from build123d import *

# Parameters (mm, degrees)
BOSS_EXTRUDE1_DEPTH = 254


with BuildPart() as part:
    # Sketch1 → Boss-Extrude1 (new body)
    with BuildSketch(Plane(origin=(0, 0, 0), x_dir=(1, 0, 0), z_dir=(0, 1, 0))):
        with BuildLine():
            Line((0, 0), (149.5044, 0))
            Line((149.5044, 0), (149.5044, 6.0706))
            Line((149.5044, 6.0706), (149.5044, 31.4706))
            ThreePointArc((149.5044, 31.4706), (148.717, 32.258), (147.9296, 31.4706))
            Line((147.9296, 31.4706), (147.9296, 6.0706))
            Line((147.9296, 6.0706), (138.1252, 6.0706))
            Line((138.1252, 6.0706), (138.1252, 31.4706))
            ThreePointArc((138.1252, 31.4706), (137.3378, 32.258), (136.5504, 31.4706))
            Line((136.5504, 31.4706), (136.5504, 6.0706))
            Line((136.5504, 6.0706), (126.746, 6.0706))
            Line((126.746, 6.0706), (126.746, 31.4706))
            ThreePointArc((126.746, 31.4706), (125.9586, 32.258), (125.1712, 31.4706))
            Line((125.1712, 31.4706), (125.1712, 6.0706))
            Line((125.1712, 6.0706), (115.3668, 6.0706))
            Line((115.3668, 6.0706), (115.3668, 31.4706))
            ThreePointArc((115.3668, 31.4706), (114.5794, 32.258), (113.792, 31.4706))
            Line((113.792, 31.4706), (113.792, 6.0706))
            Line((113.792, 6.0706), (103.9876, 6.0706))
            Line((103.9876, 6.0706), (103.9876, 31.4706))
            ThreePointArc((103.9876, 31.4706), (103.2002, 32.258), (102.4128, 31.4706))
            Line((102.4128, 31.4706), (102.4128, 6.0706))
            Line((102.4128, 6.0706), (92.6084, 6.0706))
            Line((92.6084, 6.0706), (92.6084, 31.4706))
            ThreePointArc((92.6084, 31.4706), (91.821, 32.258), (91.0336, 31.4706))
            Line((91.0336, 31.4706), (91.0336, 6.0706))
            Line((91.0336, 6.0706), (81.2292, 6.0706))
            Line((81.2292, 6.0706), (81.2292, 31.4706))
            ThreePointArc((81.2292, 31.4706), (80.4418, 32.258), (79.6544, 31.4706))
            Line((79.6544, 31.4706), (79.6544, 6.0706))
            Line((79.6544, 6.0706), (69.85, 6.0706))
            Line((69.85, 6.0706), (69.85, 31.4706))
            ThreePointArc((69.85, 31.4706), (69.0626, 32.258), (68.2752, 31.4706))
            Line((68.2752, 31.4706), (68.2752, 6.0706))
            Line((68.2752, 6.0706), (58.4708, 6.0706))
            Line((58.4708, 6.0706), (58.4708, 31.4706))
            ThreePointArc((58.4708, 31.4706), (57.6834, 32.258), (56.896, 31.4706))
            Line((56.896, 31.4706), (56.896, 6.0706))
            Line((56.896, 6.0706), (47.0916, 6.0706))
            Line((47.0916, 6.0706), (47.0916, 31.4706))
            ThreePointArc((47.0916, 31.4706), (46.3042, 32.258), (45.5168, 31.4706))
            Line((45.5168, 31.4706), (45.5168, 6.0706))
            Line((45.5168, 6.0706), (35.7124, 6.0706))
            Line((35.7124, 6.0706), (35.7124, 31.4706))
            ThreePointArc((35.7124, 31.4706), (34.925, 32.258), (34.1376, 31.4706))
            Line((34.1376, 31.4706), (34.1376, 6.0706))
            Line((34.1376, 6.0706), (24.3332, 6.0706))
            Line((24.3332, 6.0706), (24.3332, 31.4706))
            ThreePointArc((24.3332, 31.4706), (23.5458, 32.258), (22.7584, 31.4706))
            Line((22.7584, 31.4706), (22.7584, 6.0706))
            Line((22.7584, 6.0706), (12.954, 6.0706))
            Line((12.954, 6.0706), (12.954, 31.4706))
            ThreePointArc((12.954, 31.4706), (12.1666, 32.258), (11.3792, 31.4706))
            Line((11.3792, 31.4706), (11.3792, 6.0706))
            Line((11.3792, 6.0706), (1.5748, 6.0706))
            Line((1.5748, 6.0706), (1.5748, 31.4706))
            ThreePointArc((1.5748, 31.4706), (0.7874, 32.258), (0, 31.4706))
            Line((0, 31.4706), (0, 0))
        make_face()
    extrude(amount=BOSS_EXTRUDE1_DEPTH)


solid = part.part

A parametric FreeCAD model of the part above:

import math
import FreeCAD as App
import Part
import Sketcher
from FreeCAD import Vector
Q = App.Units.Quantity

doc = App.newDocument("Part")
body = doc.addObject("PartDesign::Body", "Body")

sketch1 = body.newObject("Sketcher::SketchObject", "Sketch")
sketch1.AttachmentSupport = (doc.getObject("XZ_Plane"), [""])
sketch1.MapMode = "FlatFace"
sketch1.addGeometry([
    Part.LineSegment(Vector(0, 0, 0), Vector(149.5044, 0, 0)),
    Part.LineSegment(Vector(149.5044, 0, 0), Vector(149.5044, -31.4706, 0)),
    Part.ArcOfCircle(Part.Circle(Vector(148.717, -31.4706, 0), Vector(0, 0, 1), 0.7874), math.radians(180), math.radians(360)),
    Part.LineSegment(Vector(147.9296, -31.4706, 0), Vector(147.9296, -6.0706, 0)),
    Part.LineSegment(Vector(147.9296, -6.0706, 0), Vector(138.1252, -6.0706, 0)),
    Part.LineSegment(Vector(138.1252, -6.0706, 0), Vector(138.1252, -31.4706, 0)),
    Part.ArcOfCircle(Part.Circle(Vector(137.3378, -31.4706, 0), Vector(0, 0, 1), 0.7874), math.radians(180), math.radians(360)),
    Part.LineSegment(Vector(136.5504, -31.4706, 0), Vector(136.5504, -6.0706, 0)),
    Part.LineSegment(Vector(136.5504, -6.0706, 0), Vector(126.746, -6.0706, 0)),
    Part.LineSegment(Vector(126.746, -6.0706, 0), Vector(126.746, -31.4706, 0)),
    Part.ArcOfCircle(Part.Circle(Vector(125.9586, -31.4706, 0), Vector(0, 0, 1), 0.7874), math.radians(180), math.radians(360)),
    Part.LineSegment(Vector(125.1712, -31.4706, 0), Vector(125.1712, -6.0706, 0)),
    Part.LineSegment(Vector(125.1712, -6.0706, 0), Vector(115.3668, -6.0706, 0)),
    Part.LineSegment(Vector(115.3668, -6.0706, 0), Vector(115.3668, -31.4706, 0)),
    Part.ArcOfCircle(Part.Circle(Vector(114.5794, -31.4706, 0), Vector(0, 0, 1), 0.7874), math.radians(180), math.radians(360)),
    Part.LineSegment(Vector(113.792, -31.4706, 0), Vector(113.792, -6.0706, 0)),
    Part.LineSegment(Vector(113.792, -6.0706, 0), Vector(103.9876, -6.0706, 0)),
    Part.LineSegment(Vector(103.9876, -6.0706, 0), Vector(103.9876, -31.4706, 0)),
    Part.ArcOfCircle(Part.Circle(Vector(103.2002, -31.4706, 0), Vector(0, 0, 1), 0.7874), math.radians(180), math.radians(360)),
    Part.LineSegment(Vector(102.4128, -31.4706, 0), Vector(102.4128, -6.0706, 0)),
    Part.LineSegment(Vector(102.4128, -6.0706, 0), Vector(92.6084, -6.0706, 0)),
    Part.LineSegment(Vector(92.6084, -6.0706, 0), Vector(92.6084, -31.4706, 0)),
    Part.ArcOfCircle(Part.Circle(Vector(91.821, -31.4706, 0), Vector(0, 0, 1), 0.7874), math.radians(180), math.radians(360)),
    Part.LineSegment(Vector(91.0336, -31.4706, 0), Vector(91.0336, -6.0706, 0)),
    Part.LineSegment(Vector(91.0336, -6.0706, 0), Vector(81.2292, -6.0706, 0)),
    Part.LineSegment(Vector(81.2292, -6.0706, 0), Vector(81.2292, -31.4706, 0)),
    Part.ArcOfCircle(Part.Circle(Vector(80.4418, -31.4706, 0), Vector(0, 0, 1), 0.7874), math.radians(180), math.radians(360)),
    Part.LineSegment(Vector(79.6544, -31.4706, 0), Vector(79.6544, -6.0706, 0)),
    Part.LineSegment(Vector(79.6544, -6.0706, 0), Vector(69.85, -6.0706, 0)),
    Part.LineSegment(Vector(69.85, -6.0706, 0), Vector(69.85, -31.4706, 0)),
    Part.ArcOfCircle(Part.Circle(Vector(69.0626, -31.4706, 0), Vector(0, 0, 1), 0.7874), math.radians(180), math.radians(360)),
    Part.LineSegment(Vector(68.2752, -31.4706, 0), Vector(68.2752, -6.0706, 0)),
    Part.LineSegment(Vector(68.2752, -6.0706, 0), Vector(58.4708, -6.0706, 0)),
    Part.LineSegment(Vector(58.4708, -6.0706, 0), Vector(58.4708, -31.4706, 0)),
    Part.ArcOfCircle(Part.Circle(Vector(57.6834, -31.4706, 0), Vector(0, 0, 1), 0.7874), math.radians(180), math.radians(360)),
    Part.LineSegment(Vector(56.896, -31.4706, 0), Vector(56.896, -6.0706, 0)),
    Part.LineSegment(Vector(56.896, -6.0706, 0), Vector(47.0916, -6.0706, 0)),
    Part.LineSegment(Vector(47.0916, -6.0706, 0), Vector(47.0916, -31.4706, 0)),
    Part.ArcOfCircle(Part.Circle(Vector(46.3042, -31.4706, 0), Vector(0, 0, 1), 0.7874), math.radians(180), math.radians(360)),
    Part.LineSegment(Vector(45.5168, -31.4706, 0), Vector(45.5168, -6.0706, 0)),
    Part.LineSegment(Vector(45.5168, -6.0706, 0), Vector(35.7124, -6.0706, 0)),
    Part.LineSegment(Vector(35.7124, -6.0706, 0), Vector(35.7124, -31.4706, 0)),
    Part.ArcOfCircle(Part.Circle(Vector(34.925, -31.4706, 0), Vector(0, 0, 1), 0.7874), math.radians(180), math.radians(360)),
    Part.LineSegment(Vector(34.1376, -31.4706, 0), Vector(34.1376, -6.0706, 0)),
    Part.LineSegment(Vector(34.1376, -6.0706, 0), Vector(24.3332, -6.0706, 0)),
    Part.LineSegment(Vector(24.3332, -6.0706, 0), Vector(24.3332, -31.4706, 0)),
    Part.ArcOfCircle(Part.Circle(Vector(23.5458, -31.4706, 0), Vector(0, 0, 1), 0.7874), math.radians(180), math.radians(360)),
    Part.LineSegment(Vector(22.7584, -31.4706, 0), Vector(22.7584, -6.0706, 0)),
    Part.LineSegment(Vector(22.7584, -6.0706, 0), Vector(12.954, -6.0706, 0)),
    Part.LineSegment(Vector(12.954, -6.0706, 0), Vector(12.954, -31.4706, 0)),
    Part.ArcOfCircle(Part.Circle(Vector(12.1666, -31.4706, 0), Vector(0, 0, 1), 0.7874), math.radians(180), math.radians(360)),
    Part.LineSegment(Vector(11.3792, -31.4706, 0), Vector(11.3792, -6.0706, 0)),
    Part.LineSegment(Vector(11.3792, -6.0706, 0), Vector(1.5748, -6.0706, 0)),
    Part.LineSegment(Vector(1.5748, -6.0706, 0), Vector(1.5748, -31.4706, 0)),
    Part.ArcOfCircle(Part.Circle(Vector(0.7874, -31.4706, 0), Vector(0, 0, 1), 0.7874), math.radians(180), math.radians(360)),
    Part.LineSegment(Vector(0, -31.4706, 0), Vector(0, 0, 0)),
], False)
sketch1.addConstraint([
    Sketcher.Constraint("Coincident", 0, 2, 1, 1),
    Sketcher.Constraint("Tangent", 1, 2, 2, 2),
    Sketcher.Constraint("Tangent", 2, 1, 3, 1),
    Sketcher.Constraint("Coincident", 3, 2, 4, 1),
    Sketcher.Constraint("Coincident", 4, 2, 5, 1),
    Sketcher.Constraint("Tangent", 5, 2, 6, 2),
    Sketcher.Constraint("Tangent", 6, 1, 7, 1),
    Sketcher.Constraint("Coincident", 7, 2, 8, 1),
    Sketcher.Constraint("Coincident", 8, 2, 9, 1),
    Sketcher.Constraint("Tangent", 9, 2, 10, 2),
    Sketcher.Constraint("Tangent", 10, 1, 11, 1),
    Sketcher.Constraint("Coincident", 11, 2, 12, 1),
    Sketcher.Constraint("Coincident", 12, 2, 13, 1),
    Sketcher.Constraint("Tangent", 13, 2, 14, 2),
    Sketcher.Constraint("Tangent", 14, 1, 15, 1),
    Sketcher.Constraint("Coincident", 15, 2, 16, 1),
    Sketcher.Constraint("Coincident", 16, 2, 17, 1),
    Sketcher.Constraint("Tangent", 17, 2, 18, 2),
    Sketcher.Constraint("Tangent", 18, 1, 19, 1),
    Sketcher.Constraint("Coincident", 19, 2, 20, 1),
    Sketcher.Constraint("Coincident", 20, 2, 21, 1),
    Sketcher.Constraint("Tangent", 21, 2, 22, 2),
    Sketcher.Constraint("Tangent", 22, 1, 23, 1),
    Sketcher.Constraint("Coincident", 23, 2, 24, 1),
    Sketcher.Constraint("Coincident", 24, 2, 25, 1),
    Sketcher.Constraint("Tangent", 25, 2, 26, 2),
    Sketcher.Constraint("Tangent", 26, 1, 27, 1),
    Sketcher.Constraint("Coincident", 27, 2, 28, 1),
    Sketcher.Constraint("Coincident", 28, 2, 29, 1),
    Sketcher.Constraint("Tangent", 29, 2, 30, 2),
    Sketcher.Constraint("Tangent", 30, 1, 31, 1),
    Sketcher.Constraint("Coincident", 31, 2, 32, 1),
    Sketcher.Constraint("Coincident", 32, 2, 33, 1),
    Sketcher.Constraint("Tangent", 33, 2, 34, 2),
    Sketcher.Constraint("Tangent", 34, 1, 35, 1),
    Sketcher.Constraint("Coincident", 35, 2, 36, 1),
    Sketcher.Constraint("Coincident", 36, 2, 37, 1),
    Sketcher.Constraint("Tangent", 37, 2, 38, 2),
    Sketcher.Constraint("Tangent", 38, 1, 39, 1),
    Sketcher.Constraint("Coincident", 39, 2, 40, 1),
    Sketcher.Constraint("Coincident", 40, 2, 41, 1),
    Sketcher.Constraint("Tangent", 41, 2, 42, 2),
    Sketcher.Constraint("Tangent", 42, 1, 43, 1),
    Sketcher.Constraint("Coincident", 43, 2, 44, 1),
    Sketcher.Constraint("Coincident", 44, 2, 45, 1),
    Sketcher.Constraint("Tangent", 45, 2, 46, 2),
    Sketcher.Constraint("Tangent", 46, 1, 47, 1),
    Sketcher.Constraint("Coincident", 47, 2, 48, 1),
    Sketcher.Constraint("Coincident", 48, 2, 49, 1),
    Sketcher.Constraint("Tangent", 49, 2, 50, 2),
    Sketcher.Constraint("Tangent", 50, 1, 51, 1),
    Sketcher.Constraint("Coincident", 51, 2, 52, 1),
    Sketcher.Constraint("Coincident", 52, 2, 53, 1),
    Sketcher.Constraint("Tangent", 53, 2, 54, 2),
    Sketcher.Constraint("Tangent", 54, 1, 55, 1),
    Sketcher.Constraint("Coincident", 55, 2, 0, 1),
    Sketcher.Constraint("Horizontal", 0),
    Sketcher.Constraint("Vertical", 1),
    Sketcher.Constraint("Vertical", 3),
    Sketcher.Constraint("Horizontal", 4),
    Sketcher.Constraint("Vertical", 5),
    Sketcher.Constraint("Vertical", 7),
    Sketcher.Constraint("Horizontal", 8),
    Sketcher.Constraint("Vertical", 9),
    Sketcher.Constraint("Vertical", 11),
    Sketcher.Constraint("Horizontal", 12),
    Sketcher.Constraint("Vertical", 13),
    Sketcher.Constraint("Vertical", 15),
    Sketcher.Constraint("Horizontal", 16),
    Sketcher.Constraint("Vertical", 17),
    Sketcher.Constraint("Vertical", 19),
    Sketcher.Constraint("Horizontal", 20),
    Sketcher.Constraint("Vertical", 21),
    Sketcher.Constraint("Vertical", 23),
    Sketcher.Constraint("Horizontal", 24),
    Sketcher.Constraint("Vertical", 25),
    Sketcher.Constraint("Vertical", 27),
    Sketcher.Constraint("Horizontal", 28),
    Sketcher.Constraint("Vertical", 29),
    Sketcher.Constraint("Vertical", 31),
    Sketcher.Constraint("Horizontal", 32),
    Sketcher.Constraint("Vertical", 33),
    Sketcher.Constraint("Vertical", 35),
    Sketcher.Constraint("Horizontal", 36),
    Sketcher.Constraint("Vertical", 37),
    Sketcher.Constraint("Vertical", 39),
    Sketcher.Constraint("Horizontal", 40),
    Sketcher.Constraint("Vertical", 41),
    Sketcher.Constraint("Vertical", 43),
    Sketcher.Constraint("Horizontal", 44),
    Sketcher.Constraint("Vertical", 45),
    Sketcher.Constraint("Vertical", 47),
    Sketcher.Constraint("Horizontal", 48),
    Sketcher.Constraint("Vertical", 49),
    Sketcher.Constraint("Vertical", 51),
    Sketcher.Constraint("Horizontal", 52),
    Sketcher.Constraint("Vertical", 53),
    Sketcher.Constraint("Vertical", 55),
    Sketcher.Constraint("Coincident", 55, 2, -1, 1),
    Sketcher.Constraint("Equal", 2, 6),
    Sketcher.Constraint("Equal", 6, 10),
    Sketcher.Constraint("Equal", 10, 14),
    Sketcher.Constraint("Equal", 14, 18),
    Sketcher.Constraint("Equal", 18, 22),
    Sketcher.Constraint("Equal", 22, 26),
    Sketcher.Constraint("Equal", 26, 30),
    Sketcher.Constraint("Equal", 30, 34),
    Sketcher.Constraint("Equal", 34, 38),
    Sketcher.Constraint("Equal", 38, 42),
    Sketcher.Constraint("Equal", 42, 46),
    Sketcher.Constraint("Equal", 46, 50),
    Sketcher.Constraint("Equal", 50, 54),
    Sketcher.Constraint("Horizontal", 2, 3, 6, 3),
    Sketcher.Constraint("Horizontal", 6, 3, 10, 3),
    Sketcher.Constraint("Horizontal", 10, 3, 14, 3),
    Sketcher.Constraint("Horizontal", 14, 3, 18, 3),
    Sketcher.Constraint("Horizontal", 18, 3, 22, 3),
    Sketcher.Constraint("Horizontal", 22, 3, 26, 3),
    Sketcher.Constraint("Horizontal", 26, 3, 30, 3),
    Sketcher.Constraint("Horizontal", 30, 3, 34, 3),
    Sketcher.Constraint("Horizontal", 34, 3, 38, 3),
    Sketcher.Constraint("Horizontal", 38, 3, 42, 3),
    Sketcher.Constraint("Horizontal", 42, 3, 46, 3),
    Sketcher.Constraint("Horizontal", 46, 3, 50, 3),
    Sketcher.Constraint("Horizontal", 50, 3, 54, 3),
    Sketcher.Constraint("Horizontal", 4, 2, 7, 2),
    Sketcher.Constraint("Horizontal", 8, 2, 11, 2),
    Sketcher.Constraint("Horizontal", 12, 2, 15, 2),
    Sketcher.Constraint("Horizontal", 16, 2, 19, 2),
    Sketcher.Constraint("Horizontal", 20, 2, 23, 2),
    Sketcher.Constraint("Horizontal", 24, 2, 27, 2),
    Sketcher.Constraint("Horizontal", 28, 2, 31, 2),
    Sketcher.Constraint("Horizontal", 32, 2, 35, 2),
    Sketcher.Constraint("Horizontal", 36, 2, 39, 2),
    Sketcher.Constraint("Horizontal", 40, 2, 43, 2),
    Sketcher.Constraint("Horizontal", 44, 2, 47, 2),
    Sketcher.Constraint("Horizontal", 48, 2, 51, 2),
    Sketcher.Constraint("Equal", 4, 8),
    Sketcher.Constraint("Equal", 8, 12),
    Sketcher.Constraint("Equal", 12, 16),
    Sketcher.Constraint("Equal", 16, 20),
    Sketcher.Constraint("Equal", 20, 24),
    Sketcher.Constraint("Equal", 24, 28),
    Sketcher.Constraint("Equal", 28, 32),
    Sketcher.Constraint("Equal", 32, 36),
    Sketcher.Constraint("Equal", 36, 40),
    Sketcher.Constraint("Equal", 40, 44),
    Sketcher.Constraint("Equal", 44, 48),
    Sketcher.Constraint("Equal", 48, 52),
    Sketcher.Constraint("DistanceY", 3, 1, 3, 2, Q("1 in")),
    Sketcher.Constraint("Radius", 2, Q("0.031 in")),
    Sketcher.Constraint("DistanceX", 0, 1, 0, 2, Q("5.886 in")),
    Sketcher.Constraint("DistanceY", 1, 2, 1, 1, Q("1.239 in")),
])
pad1 = body.newObject("PartDesign::Pad", "Pad")
pad1.Profile = sketch1
pad1.Length = Q("10 in")
pad1.Reversed = True

doc.recompute()
